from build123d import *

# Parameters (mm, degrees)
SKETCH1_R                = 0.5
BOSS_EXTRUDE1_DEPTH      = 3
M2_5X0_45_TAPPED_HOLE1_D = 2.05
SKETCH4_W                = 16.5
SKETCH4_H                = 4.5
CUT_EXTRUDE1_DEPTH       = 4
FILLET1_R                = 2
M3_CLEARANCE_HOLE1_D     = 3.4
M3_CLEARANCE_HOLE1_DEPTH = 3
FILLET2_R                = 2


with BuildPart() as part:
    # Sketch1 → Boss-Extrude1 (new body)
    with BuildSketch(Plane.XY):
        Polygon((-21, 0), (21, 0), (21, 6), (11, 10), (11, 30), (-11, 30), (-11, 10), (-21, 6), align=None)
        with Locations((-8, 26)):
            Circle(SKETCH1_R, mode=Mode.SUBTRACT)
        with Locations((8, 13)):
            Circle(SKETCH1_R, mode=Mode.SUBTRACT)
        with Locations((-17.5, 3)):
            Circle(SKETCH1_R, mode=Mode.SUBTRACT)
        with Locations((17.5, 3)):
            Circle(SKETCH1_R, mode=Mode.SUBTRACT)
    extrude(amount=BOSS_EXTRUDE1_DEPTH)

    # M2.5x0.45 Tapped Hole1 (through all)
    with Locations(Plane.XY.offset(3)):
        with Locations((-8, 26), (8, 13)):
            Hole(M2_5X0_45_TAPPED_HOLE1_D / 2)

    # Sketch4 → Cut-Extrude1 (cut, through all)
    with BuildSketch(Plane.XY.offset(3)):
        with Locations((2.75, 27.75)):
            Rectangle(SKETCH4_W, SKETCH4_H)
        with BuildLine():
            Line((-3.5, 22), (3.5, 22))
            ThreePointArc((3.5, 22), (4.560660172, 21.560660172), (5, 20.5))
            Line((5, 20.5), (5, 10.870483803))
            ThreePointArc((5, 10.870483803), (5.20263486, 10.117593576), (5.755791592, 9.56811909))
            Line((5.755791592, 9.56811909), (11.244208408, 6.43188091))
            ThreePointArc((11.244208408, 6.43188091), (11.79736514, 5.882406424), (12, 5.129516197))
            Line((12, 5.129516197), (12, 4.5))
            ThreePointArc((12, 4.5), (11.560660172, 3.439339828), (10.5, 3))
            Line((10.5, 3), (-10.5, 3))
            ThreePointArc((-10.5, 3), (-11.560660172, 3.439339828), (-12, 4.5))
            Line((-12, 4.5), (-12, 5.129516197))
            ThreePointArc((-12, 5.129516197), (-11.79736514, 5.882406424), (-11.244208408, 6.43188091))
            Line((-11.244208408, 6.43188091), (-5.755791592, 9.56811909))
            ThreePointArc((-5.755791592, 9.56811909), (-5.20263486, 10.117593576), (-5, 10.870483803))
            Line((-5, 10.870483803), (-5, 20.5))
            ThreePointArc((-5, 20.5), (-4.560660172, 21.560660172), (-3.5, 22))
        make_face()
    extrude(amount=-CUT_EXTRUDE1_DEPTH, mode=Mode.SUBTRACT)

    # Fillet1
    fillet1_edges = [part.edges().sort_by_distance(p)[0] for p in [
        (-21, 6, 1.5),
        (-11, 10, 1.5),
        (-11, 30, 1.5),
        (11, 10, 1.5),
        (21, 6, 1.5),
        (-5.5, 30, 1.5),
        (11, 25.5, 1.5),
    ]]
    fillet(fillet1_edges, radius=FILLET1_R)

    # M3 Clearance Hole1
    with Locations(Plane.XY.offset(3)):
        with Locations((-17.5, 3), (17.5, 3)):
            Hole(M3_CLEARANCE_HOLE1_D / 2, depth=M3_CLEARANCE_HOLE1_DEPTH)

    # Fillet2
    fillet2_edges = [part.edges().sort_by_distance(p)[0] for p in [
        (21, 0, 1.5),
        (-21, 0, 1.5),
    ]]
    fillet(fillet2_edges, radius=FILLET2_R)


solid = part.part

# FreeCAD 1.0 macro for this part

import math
import FreeCAD as App
import Part
import Sketcher

V = App.Vector


def edges_at(feature, points):
    """Names of the edges that pass closest to the given points."""
    edges = feature.Shape.Edges
    near = lambda p: min(range(len(edges)), key=lambda i: edges[i].distToShape(Part.Vertex(*p))[0])
    return sorted({f"Edge{near(p) + 1}" for p in points})


def add_polygon(sketch, points):
    """Adds a closed chain of lines whose ends are joined by coincident constraints."""
    first, n = sketch.GeometryCount, len(points)
    for a, b in zip(points, points[1:] + points[:1]):
        sketch.addGeometry(Part.LineSegment(App.Vector(*a, 0), App.Vector(*b, 0)), False)
    for i in range(n):
        sketch.addConstraint(Sketcher.Constraint("Coincident", first + i, 2, first + (i + 1) % n, 1))

doc = App.newDocument("Part")
body = doc.addObject("PartDesign::Body", "Body")

# Sketch on XY plane
sketch1 = body.newObject("Sketcher::SketchObject", "Sketch")
sketch1.AttachmentSupport = (doc.getObject("XY_Plane"), [""])
sketch1.MapMode = "FlatFace"
add_polygon(sketch1, [(-21, 0), (21, 0), (21, 6), (11, 10), (11, 30), (-11, 30), (-11, 10), (-21, 6)])  # lines 0-7
sketch1.addGeometry(Part.Circle(V(-17.5, 3, 0), V(0, 0, 1), 0.5), False)  # 8
sketch1.addGeometry(Part.Circle(V(17.5, 3, 0), V(0, 0, 1), 0.5), False)  # 9
sketch1.addGeometry(Part.Circle(V(8, 13, 0), V(0, 0, 1), 0.5), False)  # 10
sketch1.addGeometry(Part.Circle(V(-8, 26, 0), V(0, 0, 1), 0.5), False)  # 11
sketch1.addConstraint(Sketcher.Constraint("Horizontal", 0))
sketch1.addConstraint(Sketcher.Constraint("Vertical", 1))
sketch1.addConstraint(Sketcher.Constraint("Vertical", 3))
sketch1.addConstraint(Sketcher.Constraint("Horizontal", 4))
sketch1.addConstraint(Sketcher.Constraint("Vertical", 5))
sketch1.addConstraint(Sketcher.Constraint("Vertical", 7))
sketch1.addConstraint(Sketcher.Constraint("Equal", 8, 9))
sketch1.addConstraint(Sketcher.Constraint("Equal", 9, 10))
sketch1.addConstraint(Sketcher.Constraint("Equal", 10, 11))
sketch1.addConstraint(Sketcher.Constraint("Symmetric", 0, 2, 7, 2, -1, 1))
sketch1.addConstraint(Sketcher.Constraint("Symmetric", 8, 3, 9, 3, -2))
sketch1.addConstraint(Sketcher.Constraint("Symmetric", 2, 2, 5, 2, -2))
sketch1.addConstraint(Sketcher.Constraint("Horizontal", 1, 2, 6, 2))
sketch1.addConstraint(Sketcher.Constraint("Diameter", 8, 1.0))
sketch1.addConstraint(Sketcher.Constraint("DistanceX", 0, 1, 0, 2, 42.0))
sketch1.addConstraint(Sketcher.Constraint("DistanceX", 4, 2, 4, 1, 22.0))
sketch1.addConstraint(Sketcher.Constraint("DistanceY", 1, 1, 1, 2, 6.0))
sketch1.addConstraint(Sketcher.Constraint("DistanceY", 3, 1, 3, 2, 20.0))
sketch1.addConstraint(Sketcher.Constraint("DistanceY", -1, 1, 8, 3, 3.0))
sketch1.addConstraint(Sketcher.Constraint("DistanceX", -1, 1, 10, 3, 8.0))
sketch1.addConstraint(Sketcher.Constraint("DistanceY", -1, 1, 10, 3, 13.0))
sketch1.addConstraint(Sketcher.Constraint("DistanceX", 11, 3, -1, 1, 8.0))
sketch1.addConstraint(Sketcher.Constraint("DistanceY", -1, 1, 11, 3, 26.0))
sketch1.addConstraint(Sketcher.Constraint("DistanceY", -1, 1, 2, 2, 10.0))
sketch1.addConstraint(Sketcher.Constraint("DistanceX", 8, 3, 9, 3, 35.0))
pad1 = body.newObject("PartDesign::Pad", "Pad")
pad1.Profile = sketch1
pad1.Length = 3

# Sketch on XY plane
sketch2 = body.newObject("Sketcher::SketchObject", "Sketch001")
sketch2.AttachmentSupport = (doc.getObject("XY_Plane"), [""])
sketch2.MapMode = "FlatFace"
sketch2.AttachmentOffset = App.Placement(V(0, 0, 3), App.Rotation())
sketch2.addGeometry(Part.Circle(V(-8, 26, 0), V(0, 0, 1), 1), False)
sketch2.addGeometry(Part.Circle(V(8, 13, 0), V(0, 0, 1), 1), False)
sketch2.addConstraint(Sketcher.Constraint("Equal", 0, 1))
sketch2.addConstraint(Sketcher.Constraint("Diameter", 0, 2.05))
sketch2.addConstraint(Sketcher.Constraint("DistanceX", 0, 3, -1, 1, 8.0))
sketch2.addConstraint(Sketcher.Constraint("DistanceY", -1, 1, 0, 3, 26.0))
sketch2.addConstraint(Sketcher.Constraint("DistanceX", -1, 1, 1, 3, 8.0))
sketch2.addConstraint(Sketcher.Constraint("DistanceY", -1, 1, 1, 3, 13.0))
doc.recompute()
hole = body.newObject("PartDesign::Hole", "Hole")
hole.Profile = sketch2
hole.ThreadType = "None"
hole.Diameter = 2.05
hole.DepthType = "ThroughAll"

# Sketch on XY plane
sketch3 = body.newObject("Sketcher::SketchObject", "Sketch002")
sketch3.AttachmentSupport = (doc.getObject("XY_Plane"), [""])
sketch3.MapMode = "FlatFace"
sketch3.AttachmentOffset = App.Placement(V(0, 0, 3), App.Rotation())
add_polygon(sketch3, [(-5.5, 30), (-5.5, 25.5), (11, 25.5), (11, 30)])  # lines 0-3
sketch3.addGeometry(Part.LineSegment(V(3.5, 22, 0), V(-3.5, 22, 0)), False)  # 4
sketch3.addGeometry(Part.ArcOfCircle(Part.Circle(V(-3.5, 20.5, 0), V(0, 0, 1), 1.5), math.radians(90), math.radians(180)), False)  # 5
sketch3.addGeometry(Part.LineSegment(V(-5, 20.5, 0), V(-5, 10.9, 0)), False)  # 6
sketch3.addGeometry(Part.ArcOfCircle(Part.Circle(V(-6.5, 10.9, 0), V(0, 0, 1), 1.5), math.radians(-60), math.radians(0)), False)  # 7
sketch3.addGeometry(Part.LineSegment(V(-5.8, 9.6, 0), V(-11.2, 6.4, 0)), False)  # 8
sketch3.addGeometry(Part.ArcOfCircle(Part.Circle(V(-10.5, 5.1, 0), V(0, 0, 1), 1.5), math.radians(120), math.radians(180)), False)  # 9
sketch3.addGeometry(Part.LineSegment(V(-12, 5.1, 0), V(-12, 4.5, 0)), False)  # 10
sketch3.addGeometry(Part.ArcOfCircle(Part.Circle(V(-10.5, 4.5, 0), V(0, 0, 1), 1.5), math.radians(180), math.radians(270)), False)  # 11
sketch3.addGeometry(Part.LineSegment(V(-10.5, 3, 0), V(10.5, 3, 0)), False)  # 12
sketch3.addGeometry(Part.ArcOfCircle(Part.Circle(V(10.5, 4.5, 0), V(0, 0, 1), 1.5), math.radians(-90), math.radians(0)), False)  # 13
sketch3.addGeometry(Part.LineSegment(V(12, 4.5, 0), V(12, 5.1, 0)), False)  # 14
sketch3.addGeometry(Part.ArcOfCircle(Part.Circle(V(10.5, 5.1, 0), V(0, 0, 1), 1.5), math.radians(0), math.radians(60)), False)  # 15
sketch3.addGeometry(Part.LineSegment(V(11.2, 6.4, 0), V(5.8, 9.6, 0)), False)  # 16
sketch3.addGeometry(Part.ArcOfCircle(Part.Circle(V(6.5, 10.9, 0), V(0, 0, 1), 1.5), math.radians(180), math.radians(240)), False)  # 17
sketch3.addGeometry(Part.LineSegment(V(5, 10.9, 0), V(5, 20.5, 0)), False)  # 18
sketch3.addGeometry(Part.ArcOfCircle(Part.Circle(V(3.5, 20.5, 0), V(0, 0, 1), 1.5), math.radians(0), math.radians(90)), False)  # 19
sketch3.addConstraint(Sketcher.Constraint("Tangent", 4, 2, 5, 1))
sketch3.addConstraint(Sketcher.Constraint("Tangent", 5, 2, 6, 1))
sketch3.addConstraint(Sketcher.Constraint("Tangent", 6, 2, 7, 2))
sketch3.addConstraint(Sketcher.Constraint("Tangent", 7, 1, 8, 1))
sketch3.addConstraint(Sketcher.Constraint("Tangent", 8, 2, 9, 1))
sketch3.addConstraint(Sketcher.Constraint("Tangent", 9, 2, 10, 1))
sketch3.addConstraint(Sketcher.Constraint("Tangent", 10, 2, 11, 1))
sketch3.addConstraint(Sketcher.Constraint("Tangent", 11, 2, 12, 1))
sketch3.addConstraint(Sketcher.Constraint("Tangent", 12, 2, 13, 1))
sketch3.addConstraint(Sketcher.Constraint("Tangent", 13, 2, 14, 1))
sketch3.addConstraint(Sketcher.Constraint("Tangent", 14, 2, 15, 1))
sketch3.addConstraint(Sketcher.Constraint("Tangent", 15, 2, 16, 1))
sketch3.addConstraint(Sketcher.Constraint("Tangent", 16, 2, 17, 2))
sketch3.addConstraint(Sketcher.Constraint("Tangent", 17, 1, 18, 1))
sketch3.addConstraint(Sketcher.Constraint("Tangent", 18, 2, 19, 1))
sketch3.addConstraint(Sketcher.Constraint("Tangent", 19, 2, 4, 1))
sketch3.addConstraint(Sketcher.Constraint("Vertical", 0))
sketch3.addConstraint(Sketcher.Constraint("Horizontal", 1))
sketch3.addConstraint(Sketcher.Constraint("Vertical", 2))
sketch3.addConstraint(Sketcher.Constraint("Horizontal", 3))
sketch3.addConstraint(Sketcher.Constraint("Horizontal", 4))
sketch3.addConstraint(Sketcher.Constraint("Vertical", 6))
sketch3.addConstraint(Sketcher.Constraint("Vertical", 10))
sketch3.addConstraint(Sketcher.Constraint("Horizontal", 12))
sketch3.addConstraint(Sketcher.Constraint("Vertical", 14))
sketch3.addConstraint(Sketcher.Constraint("Vertical", 18))
sketch3.addConstraint(Sketcher.Constraint("Equal", 5, 7))
sketch3.addConstraint(Sketcher.Constraint("Equal", 7, 9))
sketch3.addConstraint(Sketcher.Constraint("Equal", 9, 11))
sketch3.addConstraint(Sketcher.Constraint("Equal", 11, 13))
sketch3.addConstraint(Sketcher.Constraint("Equal", 13, 15))
sketch3.addConstraint(Sketcher.Constraint("Equal", 15, 17))
sketch3.addConstraint(Sketcher.Constraint("Equal", 17, 19))
sketch3.addConstraint(Sketcher.Constraint("Symmetric", 9, 3, 15, 3, -2))
sketch3.addConstraint(Sketcher.Constraint("Symmetric", 7, 3, 17, 3, -2))
sketch3.addConstraint(Sketcher.Constraint("Radius", 5, 1.5))
sketch3.addConstraint(Sketcher.Constraint("DistanceX", 4, 2, 4, 1, 7.0))
sketch3.addConstraint(Sketcher.Constraint("DistanceX", 12, 1, 12, 2, 21.0))
sketch3.addConstraint(Sketcher.Constraint("DistanceX", 1, 1, 1, 2, 16.5))
sketch3.addConstraint(Sketcher.Constraint("DistanceY", 0, 2, 0, 1, 4.5))
sketch3.addConstraint(Sketcher.Constraint("DistanceX", -1, 1, 1, 2, 11.0))
sketch3.addConstraint(Sketcher.Constraint("DistanceY", -1, 1, 2, 2, 30.0))
sketch3.addConstraint(Sketcher.Constraint("DistanceY", -1, 1, 4, 2, 22.0))
sketch3.addConstraint(Sketcher.Constraint("DistanceY", -1, 1, 11, 2, 3.0))
sketch3.addConstraint(Sketcher.Constraint("Distance", 8, 6.32129))
sketch3.addConstraint(Sketcher.Constraint("DistanceY", 6, 2, 6, 1, 9.629516))
pocket1 = body.newObject("PartDesign::Pocket", "Pocket")
pocket1.Profile = sketch3
pocket1.Type = "ThroughAll"
doc.recompute()

fillet = body.newObject("PartDesign::Fillet", "Fillet")
fillet.Base = (pocket1, edges_at(pocket1, [
    (-21, 6, 1.5),
    (-11, 10, 1.5),
    (-11, 30, 1.5),
    (11, 10, 1.5),
    (21, 6, 1.5),
    (-5.5, 30, 1.5),
    (11, 25.5, 1.5),
]))
fillet.Radius = 2

# Sketch on XY plane
sketch4 = body.newObject("Sketcher::SketchObject", "Sketch003")
sketch4.AttachmentSupport = (doc.getObject("XY_Plane"), [""])
sketch4.MapMode = "FlatFace"
sketch4.AttachmentOffset = App.Placement(V(0, 0, 3), App.Rotation())
sketch4.addGeometry(Part.Circle(V(-17.5, 3, 0), V(0, 0, 1), 1.7), False)
sketch4.addGeometry(Part.Circle(V(17.5, 3, 0), V(0, 0, 1), 1.7), False)
sketch4.addConstraint(Sketcher.Constraint("Equal", 0, 1))
sketch4.addConstraint(Sketcher.Constraint("Symmetric", 0, 3, 1, 3, -2))
sketch4.addConstraint(Sketcher.Constraint("Diameter", 0, 3.4))
sketch4.addConstraint(Sketcher.Constraint("DistanceY", -1, 1, 0, 3, 3.0))
sketch4.addConstraint(Sketcher.Constraint("DistanceX", 0, 3, 1, 3, 35.0))
doc.recompute()
hole2 = body.newObject("PartDesign::Hole", "Hole001")
hole2.Profile = sketch4
hole2.ThreadType = "None"
hole2.Diameter = 3.4
hole2.DepthType = "Dimension"
hole2.Depth = 3
hole2.DrillPoint = "Flat"
doc.recompute()

fillet2 = body.newObject("PartDesign::Fillet", "Fillet001")
fillet2.Base = (hole2, edges_at(hole2, [(21, 0, 1.5), (-21, 0, 1.5)]))
fillet2.Radius = 2

doc.recompute()
